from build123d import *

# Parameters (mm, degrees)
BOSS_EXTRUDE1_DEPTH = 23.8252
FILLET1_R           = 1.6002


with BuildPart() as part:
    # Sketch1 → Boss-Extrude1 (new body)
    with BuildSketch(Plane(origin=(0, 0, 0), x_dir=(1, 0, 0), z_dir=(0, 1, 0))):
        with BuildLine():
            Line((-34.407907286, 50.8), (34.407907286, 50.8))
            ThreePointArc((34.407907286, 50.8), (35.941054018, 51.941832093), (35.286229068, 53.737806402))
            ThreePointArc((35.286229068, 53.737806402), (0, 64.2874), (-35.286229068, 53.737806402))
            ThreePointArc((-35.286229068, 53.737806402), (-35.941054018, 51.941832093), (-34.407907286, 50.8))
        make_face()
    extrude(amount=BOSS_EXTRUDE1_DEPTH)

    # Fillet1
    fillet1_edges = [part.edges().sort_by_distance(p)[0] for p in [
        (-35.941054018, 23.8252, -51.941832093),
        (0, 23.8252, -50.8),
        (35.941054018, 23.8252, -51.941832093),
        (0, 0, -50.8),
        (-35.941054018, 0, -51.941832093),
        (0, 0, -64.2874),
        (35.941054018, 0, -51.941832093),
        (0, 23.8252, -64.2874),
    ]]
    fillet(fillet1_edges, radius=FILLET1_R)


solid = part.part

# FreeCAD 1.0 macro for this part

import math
import FreeCAD as App
import Part
import Sketcher
Q = App.Units.Quantity


def edges_at(feature, points):
    """Names of the edges that pass closest to the given points."""
    edges = feature.Shape.Edges
    near = lambda p: min(range(len(edges)), key=lambda i: edges[i].distToShape(Part.Vertex(*p))[0])
    return sorted({f"Edge{near(p) + 1}" for p in points})

doc = App.newDocument("Part")
body = doc.addObject("PartDesign::Body", "Body")

# Sketch on XZ plane
sketch1 = body.newObject("Sketcher::SketchObject", "Sketch")
sketch1.AttachmentSupport = (doc.getObject("XZ_Plane"), [""])
sketch1.MapMode = "FlatFace"
sketch1.addGeometry([
    Part.LineSegment(App.Vector(-34.4, -50.8, 0), App.Vector(34.4, -50.8, 0)),
    Part.ArcOfCircle(Part.Circle(App.Vector(34.4, -52.4, 0), App.Vector(0, 0, 1), 1.6), math.radians(-57), math.radians(90)),
    Part.ArcOfCircle(Part.Circle(App.Vector(0, 0, 0), App.Vector(0, 0, 1), 64.3), math.radians(-123), math.radians(-57)),
    Part.ArcOfCircle(Part.Circle(App.Vector(-34.4, -52.4, 0), App.Vector(0, 0, 1), 1.6), math.radians(90), math.radians(237)),
], False)
sketch1.addConstraint([
    Sketcher.Constraint("Tangent", 0, 2, 1, 2),
    Sketcher.Constraint("Tangent", 1, 1, 2, 2),
    Sketcher.Constraint("Tangent", 2, 1, 3, 2),
    Sketcher.Constraint("Tangent", 3, 1, 0, 1),
    Sketcher.Constraint("Horizontal", 0),
    Sketcher.Constraint("Coincident", 2, 3, -1, 1),
    Sketcher.Constraint("Equal", 1, 3),
    Sketcher.Constraint("DistanceY", 0, 2, -1, 1, Q("2 in")),
    Sketcher.Constraint("Radius", 1, Q("0.063 in")),
    Sketcher.Constraint("Radius", 2, Q("2.531 in")),
])
pad1 = body.newObject("PartDesign::Pad", "Pad")
pad1.Profile = sketch1
pad1.Length = Q("0.938 in")
pad1.Reversed = True
doc.recompute()

fillet = body.newObject("PartDesign::Fillet", "Fillet")
fillet.Base = (pad1, edges_at(pad1, [
    (-35.941, 23.825, -51.942),
    (0, 23.825, -50.8),
    (35.941, 23.825, -51.942),
    (0, 0, -50.8),
    (-35.941, 0, -51.942),
    (0, 0, -64.287),
    (35.941, 0, -51.942),
    (0, 23.825, -64.287),
]))
fillet.Radius = Q("0.063 in")

doc.recompute()
